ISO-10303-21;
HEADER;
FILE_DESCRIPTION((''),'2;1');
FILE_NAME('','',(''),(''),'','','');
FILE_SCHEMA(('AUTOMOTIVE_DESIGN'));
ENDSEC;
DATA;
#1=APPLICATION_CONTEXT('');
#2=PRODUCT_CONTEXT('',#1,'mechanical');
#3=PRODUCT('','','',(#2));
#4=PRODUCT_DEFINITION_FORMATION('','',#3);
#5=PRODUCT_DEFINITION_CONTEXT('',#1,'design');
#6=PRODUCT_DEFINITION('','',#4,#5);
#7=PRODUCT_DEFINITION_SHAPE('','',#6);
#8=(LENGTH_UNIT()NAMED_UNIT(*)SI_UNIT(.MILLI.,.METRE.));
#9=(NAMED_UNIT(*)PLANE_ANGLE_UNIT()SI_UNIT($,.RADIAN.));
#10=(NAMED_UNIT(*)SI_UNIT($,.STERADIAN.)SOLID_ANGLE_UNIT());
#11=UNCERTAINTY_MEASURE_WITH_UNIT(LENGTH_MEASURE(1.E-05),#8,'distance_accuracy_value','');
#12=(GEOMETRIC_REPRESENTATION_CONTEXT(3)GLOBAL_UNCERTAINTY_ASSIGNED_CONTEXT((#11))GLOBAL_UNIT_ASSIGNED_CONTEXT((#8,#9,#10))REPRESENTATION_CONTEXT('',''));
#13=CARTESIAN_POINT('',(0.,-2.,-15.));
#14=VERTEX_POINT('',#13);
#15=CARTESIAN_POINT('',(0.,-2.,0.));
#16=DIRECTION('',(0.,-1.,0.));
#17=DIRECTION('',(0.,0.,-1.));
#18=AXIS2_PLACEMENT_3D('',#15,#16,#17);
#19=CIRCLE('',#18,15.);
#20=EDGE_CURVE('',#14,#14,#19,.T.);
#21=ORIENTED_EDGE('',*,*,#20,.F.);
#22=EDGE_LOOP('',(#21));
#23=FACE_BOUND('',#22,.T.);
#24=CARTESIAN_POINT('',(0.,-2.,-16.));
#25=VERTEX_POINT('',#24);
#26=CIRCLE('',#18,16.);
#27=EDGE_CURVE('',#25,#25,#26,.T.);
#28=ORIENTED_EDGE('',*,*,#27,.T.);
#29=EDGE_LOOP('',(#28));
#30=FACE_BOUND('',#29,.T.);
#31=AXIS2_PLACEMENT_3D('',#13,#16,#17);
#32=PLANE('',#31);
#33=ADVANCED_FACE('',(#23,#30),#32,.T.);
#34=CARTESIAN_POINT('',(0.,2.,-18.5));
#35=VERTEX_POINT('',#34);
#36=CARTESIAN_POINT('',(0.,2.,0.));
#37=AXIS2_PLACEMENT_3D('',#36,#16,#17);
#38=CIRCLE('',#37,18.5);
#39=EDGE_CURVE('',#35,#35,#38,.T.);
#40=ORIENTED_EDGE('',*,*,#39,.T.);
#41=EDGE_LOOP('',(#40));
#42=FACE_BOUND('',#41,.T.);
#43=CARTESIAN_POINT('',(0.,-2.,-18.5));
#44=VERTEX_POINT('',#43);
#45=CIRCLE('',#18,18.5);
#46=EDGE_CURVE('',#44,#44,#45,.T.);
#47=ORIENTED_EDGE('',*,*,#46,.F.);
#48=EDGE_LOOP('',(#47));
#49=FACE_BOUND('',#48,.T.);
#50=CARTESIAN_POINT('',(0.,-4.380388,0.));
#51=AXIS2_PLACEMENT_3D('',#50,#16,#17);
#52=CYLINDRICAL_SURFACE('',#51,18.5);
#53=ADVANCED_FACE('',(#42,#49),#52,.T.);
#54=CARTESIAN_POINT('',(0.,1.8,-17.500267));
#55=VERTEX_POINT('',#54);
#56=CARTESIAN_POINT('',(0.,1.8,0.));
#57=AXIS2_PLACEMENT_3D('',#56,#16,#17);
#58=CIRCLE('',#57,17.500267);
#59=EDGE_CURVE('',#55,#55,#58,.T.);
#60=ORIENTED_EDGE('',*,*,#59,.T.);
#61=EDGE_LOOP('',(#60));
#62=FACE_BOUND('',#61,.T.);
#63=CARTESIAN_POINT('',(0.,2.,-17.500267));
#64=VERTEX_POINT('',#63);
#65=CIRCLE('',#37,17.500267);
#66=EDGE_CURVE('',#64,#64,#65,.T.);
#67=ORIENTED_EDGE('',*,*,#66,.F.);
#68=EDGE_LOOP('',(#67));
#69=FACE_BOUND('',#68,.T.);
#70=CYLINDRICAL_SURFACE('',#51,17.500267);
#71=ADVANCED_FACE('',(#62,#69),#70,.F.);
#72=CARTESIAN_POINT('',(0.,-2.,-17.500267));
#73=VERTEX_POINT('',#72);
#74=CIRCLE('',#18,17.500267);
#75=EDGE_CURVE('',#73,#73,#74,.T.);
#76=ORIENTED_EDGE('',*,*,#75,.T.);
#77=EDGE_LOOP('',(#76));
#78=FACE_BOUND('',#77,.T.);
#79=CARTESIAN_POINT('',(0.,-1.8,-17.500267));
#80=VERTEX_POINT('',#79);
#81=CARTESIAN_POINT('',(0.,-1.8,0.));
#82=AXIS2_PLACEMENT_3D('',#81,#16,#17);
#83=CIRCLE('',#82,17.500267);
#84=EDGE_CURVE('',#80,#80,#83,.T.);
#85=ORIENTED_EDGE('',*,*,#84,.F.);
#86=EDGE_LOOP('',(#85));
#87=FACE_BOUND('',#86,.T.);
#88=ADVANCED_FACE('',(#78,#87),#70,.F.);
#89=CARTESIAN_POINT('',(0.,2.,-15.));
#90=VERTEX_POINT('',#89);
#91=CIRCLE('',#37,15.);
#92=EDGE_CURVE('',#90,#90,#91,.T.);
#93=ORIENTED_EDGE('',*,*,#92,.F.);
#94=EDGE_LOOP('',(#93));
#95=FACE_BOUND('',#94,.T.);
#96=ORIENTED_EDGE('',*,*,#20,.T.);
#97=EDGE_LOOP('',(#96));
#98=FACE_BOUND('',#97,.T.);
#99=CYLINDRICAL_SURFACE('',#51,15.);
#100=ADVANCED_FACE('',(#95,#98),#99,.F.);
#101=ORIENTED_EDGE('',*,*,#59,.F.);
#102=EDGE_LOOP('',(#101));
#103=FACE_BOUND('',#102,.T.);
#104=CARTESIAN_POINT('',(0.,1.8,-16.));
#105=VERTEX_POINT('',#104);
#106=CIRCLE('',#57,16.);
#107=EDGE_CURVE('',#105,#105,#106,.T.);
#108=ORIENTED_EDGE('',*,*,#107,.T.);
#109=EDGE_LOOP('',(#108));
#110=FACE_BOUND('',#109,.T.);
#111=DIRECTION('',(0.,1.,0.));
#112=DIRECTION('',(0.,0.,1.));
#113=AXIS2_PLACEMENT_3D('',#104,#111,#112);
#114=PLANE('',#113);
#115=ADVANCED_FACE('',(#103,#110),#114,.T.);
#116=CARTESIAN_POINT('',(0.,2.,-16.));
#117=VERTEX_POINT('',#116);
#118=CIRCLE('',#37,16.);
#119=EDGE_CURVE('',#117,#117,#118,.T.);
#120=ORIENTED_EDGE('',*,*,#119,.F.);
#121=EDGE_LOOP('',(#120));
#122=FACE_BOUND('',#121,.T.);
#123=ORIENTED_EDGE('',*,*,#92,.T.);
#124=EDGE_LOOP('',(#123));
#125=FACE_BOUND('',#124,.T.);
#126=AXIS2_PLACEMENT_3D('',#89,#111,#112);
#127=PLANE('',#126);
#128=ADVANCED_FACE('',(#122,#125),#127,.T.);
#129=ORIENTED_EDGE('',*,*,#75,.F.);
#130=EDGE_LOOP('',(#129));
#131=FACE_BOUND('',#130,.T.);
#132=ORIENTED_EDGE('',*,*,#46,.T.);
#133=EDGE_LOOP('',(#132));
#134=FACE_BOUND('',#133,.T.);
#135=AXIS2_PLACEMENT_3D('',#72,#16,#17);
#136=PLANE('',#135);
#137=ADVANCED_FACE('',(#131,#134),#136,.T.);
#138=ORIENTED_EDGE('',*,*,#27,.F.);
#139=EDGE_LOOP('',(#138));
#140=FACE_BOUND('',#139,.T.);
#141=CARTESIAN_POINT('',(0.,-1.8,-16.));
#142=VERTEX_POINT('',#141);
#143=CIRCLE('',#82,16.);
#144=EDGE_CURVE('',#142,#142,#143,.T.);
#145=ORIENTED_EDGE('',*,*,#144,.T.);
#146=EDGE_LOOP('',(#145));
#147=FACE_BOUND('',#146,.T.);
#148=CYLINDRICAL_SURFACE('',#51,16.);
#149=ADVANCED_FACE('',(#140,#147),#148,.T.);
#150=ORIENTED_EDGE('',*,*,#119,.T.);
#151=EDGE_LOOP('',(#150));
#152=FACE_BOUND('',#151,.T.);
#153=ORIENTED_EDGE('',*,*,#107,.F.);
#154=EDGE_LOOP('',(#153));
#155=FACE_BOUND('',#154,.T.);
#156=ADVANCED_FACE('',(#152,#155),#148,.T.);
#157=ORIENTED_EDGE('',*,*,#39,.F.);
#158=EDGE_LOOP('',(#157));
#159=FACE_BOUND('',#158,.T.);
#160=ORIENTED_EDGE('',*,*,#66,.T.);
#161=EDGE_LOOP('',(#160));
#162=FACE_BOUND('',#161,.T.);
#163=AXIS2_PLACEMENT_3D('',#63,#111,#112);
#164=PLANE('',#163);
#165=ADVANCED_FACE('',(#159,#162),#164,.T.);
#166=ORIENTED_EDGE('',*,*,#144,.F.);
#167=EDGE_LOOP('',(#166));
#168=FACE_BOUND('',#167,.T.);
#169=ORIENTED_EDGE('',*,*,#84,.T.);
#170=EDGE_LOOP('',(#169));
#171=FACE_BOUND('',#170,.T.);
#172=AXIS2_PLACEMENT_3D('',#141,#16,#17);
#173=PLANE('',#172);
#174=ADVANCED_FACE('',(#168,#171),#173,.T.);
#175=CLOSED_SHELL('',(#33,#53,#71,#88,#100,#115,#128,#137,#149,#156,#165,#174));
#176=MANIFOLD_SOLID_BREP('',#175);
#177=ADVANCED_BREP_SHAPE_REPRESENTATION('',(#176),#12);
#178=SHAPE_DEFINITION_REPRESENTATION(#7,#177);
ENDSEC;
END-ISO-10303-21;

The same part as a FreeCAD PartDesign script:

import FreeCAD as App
import Part
import Sketcher

V = App.Vector


def add_polygon(sketch, points):
    """Adds a closed chain of lines whose ends are joined by coincident constraints."""
    first, n = sketch.GeometryCount, len(points)
    for a, b in zip(points, points[1:] + points[:1]):
        sketch.addGeometry(Part.LineSegment(App.Vector(*a, 0), App.Vector(*b, 0)), False)
    for i in range(n):
        sketch.addConstraint(Sketcher.Constraint("Coincident", first + i, 2, first + (i + 1) % n, 1))

doc = App.newDocument("Part")
body = doc.addObject("PartDesign::Body", "Body")

sketch1 = body.newObject("Sketcher::SketchObject", "Sketch")
sketch1.AttachmentSupport = (doc.getObject("YZ_Plane"), [""])
sketch1.MapMode = "FlatFace"
add_polygon(sketch1, [(2, -16), (2, -15), (-2, -15), (-2, -16), (-1.8, -16), (-1.8, -17.500267), (-2, -17.500267), (-2, -18.5), (2, -18.5), (2, -17.500267), (1.8, -17.500267), (1.8, -16)])
sketch1.addConstraint([
    Sketcher.Constraint("Vertical", 0),
    Sketcher.Constraint("Horizontal", 1),
    Sketcher.Constraint("Vertical", 2),
    Sketcher.Constraint("Horizontal", 3),
    Sketcher.Constraint("Vertical", 4),
    Sketcher.Constraint("Horizontal", 5),
    Sketcher.Constraint("Vertical", 6),
    Sketcher.Constraint("Horizontal", 7),
    Sketcher.Constraint("Vertical", 8),
    Sketcher.Constraint("Horizontal", 9),
    Sketcher.Constraint("Vertical", 10),
    Sketcher.Constraint("Horizontal", 11),
    Sketcher.Constraint("Symmetric", 5, 2, 8, 2, -2),
    Sketcher.Constraint("Symmetric", 3, 2, 10, 2, -2),
    Sketcher.Constraint("Vertical", 2, 2, 5, 2),
    Sketcher.Constraint("Vertical", 0, 2, 7, 2),
    Sketcher.Constraint("DistanceX", 1, 2, 1, 1, 4.0),
    Sketcher.Constraint("DistanceY", 0, 1, 0, 2, 1.0),
    Sketcher.Constraint("DistanceX", 3, 1, 3, 2, 0.2),
    Sketcher.Constraint("DistanceY", 0, 2, -1, 1, 15.0),
    Sketcher.Constraint("DistanceY", 6, 2, -1, 1, 18.5),
    Sketcher.Constraint("DistanceY", 4, 2, 4, 1, 1.500267),
])
revolution = body.newObject("PartDesign::Revolution", "Revolution")
revolution.Profile = sketch1
revolution.ReferenceAxis = (sketch1, ["H_Axis"])
revolution.Angle = 360

doc.recompute()
